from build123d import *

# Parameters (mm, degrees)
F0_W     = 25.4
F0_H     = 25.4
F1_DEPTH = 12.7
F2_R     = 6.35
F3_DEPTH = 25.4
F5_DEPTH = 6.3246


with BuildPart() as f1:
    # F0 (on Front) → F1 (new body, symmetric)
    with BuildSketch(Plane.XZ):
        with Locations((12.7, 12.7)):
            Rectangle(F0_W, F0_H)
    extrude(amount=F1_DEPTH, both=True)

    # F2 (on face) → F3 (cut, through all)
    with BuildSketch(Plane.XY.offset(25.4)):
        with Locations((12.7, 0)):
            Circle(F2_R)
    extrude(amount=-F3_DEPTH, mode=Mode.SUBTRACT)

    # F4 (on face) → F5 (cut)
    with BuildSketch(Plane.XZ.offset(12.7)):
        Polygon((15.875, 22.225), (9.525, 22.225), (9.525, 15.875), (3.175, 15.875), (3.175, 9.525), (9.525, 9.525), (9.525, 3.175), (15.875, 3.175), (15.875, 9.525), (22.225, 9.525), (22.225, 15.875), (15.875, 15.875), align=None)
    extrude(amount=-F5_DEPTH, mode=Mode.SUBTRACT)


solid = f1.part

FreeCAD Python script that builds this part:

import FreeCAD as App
import Part
import Sketcher

V = App.Vector
Q = App.Units.Quantity


def add_polygon(sketch, points):
    """Adds a closed chain of lines whose ends are joined by coincident constraints."""
    first, n = sketch.GeometryCount, len(points)
    for a, b in zip(points, points[1:] + points[:1]):
        sketch.addGeometry(Part.LineSegment(App.Vector(*a, 0), App.Vector(*b, 0)), False)
    for i in range(n):
        sketch.addConstraint(Sketcher.Constraint("Coincident", first + i, 2, first + (i + 1) % n, 1))

doc = App.newDocument("Part")
body = doc.addObject("PartDesign::Body", "Body")

sketch1 = body.newObject("Sketcher::SketchObject", "Sketch")
sketch1.AttachmentSupport = (doc.getObject("XZ_Plane"), [""])
sketch1.MapMode = "FlatFace"
add_polygon(sketch1, [(0, 25), (0, 0), (25, 0), (25, 25)])
sketch1.addConstraint(Sketcher.Constraint("Vertical", 0))
sketch1.addConstraint(Sketcher.Constraint("Horizontal", 1))
sketch1.addConstraint(Sketcher.Constraint("Vertical", 2))
sketch1.addConstraint(Sketcher.Constraint("Horizontal", 3))
sketch1.addConstraint(Sketcher.Constraint("Coincident", 0, 2, -1, 1))
sketch1.addConstraint(Sketcher.Constraint("Equal", 3, 0))
sketch1.addConstraint(Sketcher.Constraint("DistanceX", 1, 1, 1, 2, Q("1 in")))
pad1 = body.newObject("PartDesign::Pad", "Pad")
pad1.Profile = sketch1
pad1.Length = Q("1 in")
pad1.Midplane = True

sketch2 = body.newObject("Sketcher::SketchObject", "Sketch001")
sketch2.AttachmentSupport = (doc.getObject("XY_Plane"), [""])
sketch2.MapMode = "FlatFace"
sketch2.AttachmentOffset = App.Placement(V(0, 0, 1 * 25.4), App.Rotation())
sketch2.addGeometry(Part.Circle(V(13, 0, 0), V(0, 0, 1), 6), False)
sketch2.addConstraint(Sketcher.Constraint("PointOnObject", 0, 3, -1))
sketch2.addConstraint(Sketcher.Constraint("Diameter", 0, Q("0.5 in")))
sketch2.addConstraint(Sketcher.Constraint("DistanceX", -1, 1, 0, 3, Q("0.5 in")))
pocket1 = body.newObject("PartDesign::Pocket", "Pocket")
pocket1.Profile = sketch2
pocket1.Type = "ThroughAll"

sketch3 = body.newObject("Sketcher::SketchObject", "Sketch002")
sketch3.AttachmentSupport = (doc.getObject("XZ_Plane"), [""])
sketch3.MapMode = "FlatFace"
sketch3.AttachmentOffset = App.Placement(V(0, 0, 0.5 * 25.4), App.Rotation())
add_polygon(sketch3, [(16, 22), (10, 22), (10, 16), (3, 16), (3, 10), (10, 10), (10, 3), (16, 3), (16, 10), (22, 10), (22, 16), (16, 16)])
sketch3.addConstraint(Sketcher.Constraint("Horizontal", 0))
sketch3.addConstraint(Sketcher.Constraint("Vertical", 1))
sketch3.addConstraint(Sketcher.Constraint("Horizontal", 2))
sketch3.addConstraint(Sketcher.Constraint("Vertical", 3))
sketch3.addConstraint(Sketcher.Constraint("Horizontal", 4))
sketch3.addConstraint(Sketcher.Constraint("Vertical", 5))
sketch3.addConstraint(Sketcher.Constraint("Horizontal", 6))
sketch3.addConstraint(Sketcher.Constraint("Vertical", 7))
sketch3.addConstraint(Sketcher.Constraint("Horizontal", 8))
sketch3.addConstraint(Sketcher.Constraint("Vertical", 9))
sketch3.addConstraint(Sketcher.Constraint("Horizontal", 10))
sketch3.addConstraint(Sketcher.Constraint("Vertical", 11))
sketch3.addConstraint(Sketcher.Constraint("Horizontal", 4, 2, 7, 2))
sketch3.addConstraint(Sketcher.Constraint("Horizontal", 2, 2, 9, 2))
sketch3.addConstraint(Sketcher.Constraint("Vertical", 1, 2, 4, 2))
sketch3.addConstraint(Sketcher.Constraint("Vertical", 7, 2, 10, 2))
sketch3.addConstraint(Sketcher.Constraint("Equal", 0, 2))
sketch3.addConstraint(Sketcher.Constraint("Equal", 6, 8))
sketch3.addConstraint(Sketcher.Constraint("Equal", 10, 1))
sketch3.addConstraint(Sketcher.Constraint("Equal", 1, 3))
sketch3.addConstraint(Sketcher.Constraint("Equal", 3, 5))
sketch3.addConstraint(Sketcher.Constraint("DistanceX", 0, 2, 0, 1, Q("0.25 in")))
sketch3.addConstraint(Sketcher.Constraint("DistanceX", -1, 1, 0, 2, Q("0.375 in")))
sketch3.addConstraint(Sketcher.Constraint("DistanceY", -1, 1, 0, 2, Q("0.875 in")))
pocket2 = body.newObject("PartDesign::Pocket", "Pocket001")
pocket2.Profile = sketch3
pocket2.Length = Q("0.249 in")

doc.recompute()
